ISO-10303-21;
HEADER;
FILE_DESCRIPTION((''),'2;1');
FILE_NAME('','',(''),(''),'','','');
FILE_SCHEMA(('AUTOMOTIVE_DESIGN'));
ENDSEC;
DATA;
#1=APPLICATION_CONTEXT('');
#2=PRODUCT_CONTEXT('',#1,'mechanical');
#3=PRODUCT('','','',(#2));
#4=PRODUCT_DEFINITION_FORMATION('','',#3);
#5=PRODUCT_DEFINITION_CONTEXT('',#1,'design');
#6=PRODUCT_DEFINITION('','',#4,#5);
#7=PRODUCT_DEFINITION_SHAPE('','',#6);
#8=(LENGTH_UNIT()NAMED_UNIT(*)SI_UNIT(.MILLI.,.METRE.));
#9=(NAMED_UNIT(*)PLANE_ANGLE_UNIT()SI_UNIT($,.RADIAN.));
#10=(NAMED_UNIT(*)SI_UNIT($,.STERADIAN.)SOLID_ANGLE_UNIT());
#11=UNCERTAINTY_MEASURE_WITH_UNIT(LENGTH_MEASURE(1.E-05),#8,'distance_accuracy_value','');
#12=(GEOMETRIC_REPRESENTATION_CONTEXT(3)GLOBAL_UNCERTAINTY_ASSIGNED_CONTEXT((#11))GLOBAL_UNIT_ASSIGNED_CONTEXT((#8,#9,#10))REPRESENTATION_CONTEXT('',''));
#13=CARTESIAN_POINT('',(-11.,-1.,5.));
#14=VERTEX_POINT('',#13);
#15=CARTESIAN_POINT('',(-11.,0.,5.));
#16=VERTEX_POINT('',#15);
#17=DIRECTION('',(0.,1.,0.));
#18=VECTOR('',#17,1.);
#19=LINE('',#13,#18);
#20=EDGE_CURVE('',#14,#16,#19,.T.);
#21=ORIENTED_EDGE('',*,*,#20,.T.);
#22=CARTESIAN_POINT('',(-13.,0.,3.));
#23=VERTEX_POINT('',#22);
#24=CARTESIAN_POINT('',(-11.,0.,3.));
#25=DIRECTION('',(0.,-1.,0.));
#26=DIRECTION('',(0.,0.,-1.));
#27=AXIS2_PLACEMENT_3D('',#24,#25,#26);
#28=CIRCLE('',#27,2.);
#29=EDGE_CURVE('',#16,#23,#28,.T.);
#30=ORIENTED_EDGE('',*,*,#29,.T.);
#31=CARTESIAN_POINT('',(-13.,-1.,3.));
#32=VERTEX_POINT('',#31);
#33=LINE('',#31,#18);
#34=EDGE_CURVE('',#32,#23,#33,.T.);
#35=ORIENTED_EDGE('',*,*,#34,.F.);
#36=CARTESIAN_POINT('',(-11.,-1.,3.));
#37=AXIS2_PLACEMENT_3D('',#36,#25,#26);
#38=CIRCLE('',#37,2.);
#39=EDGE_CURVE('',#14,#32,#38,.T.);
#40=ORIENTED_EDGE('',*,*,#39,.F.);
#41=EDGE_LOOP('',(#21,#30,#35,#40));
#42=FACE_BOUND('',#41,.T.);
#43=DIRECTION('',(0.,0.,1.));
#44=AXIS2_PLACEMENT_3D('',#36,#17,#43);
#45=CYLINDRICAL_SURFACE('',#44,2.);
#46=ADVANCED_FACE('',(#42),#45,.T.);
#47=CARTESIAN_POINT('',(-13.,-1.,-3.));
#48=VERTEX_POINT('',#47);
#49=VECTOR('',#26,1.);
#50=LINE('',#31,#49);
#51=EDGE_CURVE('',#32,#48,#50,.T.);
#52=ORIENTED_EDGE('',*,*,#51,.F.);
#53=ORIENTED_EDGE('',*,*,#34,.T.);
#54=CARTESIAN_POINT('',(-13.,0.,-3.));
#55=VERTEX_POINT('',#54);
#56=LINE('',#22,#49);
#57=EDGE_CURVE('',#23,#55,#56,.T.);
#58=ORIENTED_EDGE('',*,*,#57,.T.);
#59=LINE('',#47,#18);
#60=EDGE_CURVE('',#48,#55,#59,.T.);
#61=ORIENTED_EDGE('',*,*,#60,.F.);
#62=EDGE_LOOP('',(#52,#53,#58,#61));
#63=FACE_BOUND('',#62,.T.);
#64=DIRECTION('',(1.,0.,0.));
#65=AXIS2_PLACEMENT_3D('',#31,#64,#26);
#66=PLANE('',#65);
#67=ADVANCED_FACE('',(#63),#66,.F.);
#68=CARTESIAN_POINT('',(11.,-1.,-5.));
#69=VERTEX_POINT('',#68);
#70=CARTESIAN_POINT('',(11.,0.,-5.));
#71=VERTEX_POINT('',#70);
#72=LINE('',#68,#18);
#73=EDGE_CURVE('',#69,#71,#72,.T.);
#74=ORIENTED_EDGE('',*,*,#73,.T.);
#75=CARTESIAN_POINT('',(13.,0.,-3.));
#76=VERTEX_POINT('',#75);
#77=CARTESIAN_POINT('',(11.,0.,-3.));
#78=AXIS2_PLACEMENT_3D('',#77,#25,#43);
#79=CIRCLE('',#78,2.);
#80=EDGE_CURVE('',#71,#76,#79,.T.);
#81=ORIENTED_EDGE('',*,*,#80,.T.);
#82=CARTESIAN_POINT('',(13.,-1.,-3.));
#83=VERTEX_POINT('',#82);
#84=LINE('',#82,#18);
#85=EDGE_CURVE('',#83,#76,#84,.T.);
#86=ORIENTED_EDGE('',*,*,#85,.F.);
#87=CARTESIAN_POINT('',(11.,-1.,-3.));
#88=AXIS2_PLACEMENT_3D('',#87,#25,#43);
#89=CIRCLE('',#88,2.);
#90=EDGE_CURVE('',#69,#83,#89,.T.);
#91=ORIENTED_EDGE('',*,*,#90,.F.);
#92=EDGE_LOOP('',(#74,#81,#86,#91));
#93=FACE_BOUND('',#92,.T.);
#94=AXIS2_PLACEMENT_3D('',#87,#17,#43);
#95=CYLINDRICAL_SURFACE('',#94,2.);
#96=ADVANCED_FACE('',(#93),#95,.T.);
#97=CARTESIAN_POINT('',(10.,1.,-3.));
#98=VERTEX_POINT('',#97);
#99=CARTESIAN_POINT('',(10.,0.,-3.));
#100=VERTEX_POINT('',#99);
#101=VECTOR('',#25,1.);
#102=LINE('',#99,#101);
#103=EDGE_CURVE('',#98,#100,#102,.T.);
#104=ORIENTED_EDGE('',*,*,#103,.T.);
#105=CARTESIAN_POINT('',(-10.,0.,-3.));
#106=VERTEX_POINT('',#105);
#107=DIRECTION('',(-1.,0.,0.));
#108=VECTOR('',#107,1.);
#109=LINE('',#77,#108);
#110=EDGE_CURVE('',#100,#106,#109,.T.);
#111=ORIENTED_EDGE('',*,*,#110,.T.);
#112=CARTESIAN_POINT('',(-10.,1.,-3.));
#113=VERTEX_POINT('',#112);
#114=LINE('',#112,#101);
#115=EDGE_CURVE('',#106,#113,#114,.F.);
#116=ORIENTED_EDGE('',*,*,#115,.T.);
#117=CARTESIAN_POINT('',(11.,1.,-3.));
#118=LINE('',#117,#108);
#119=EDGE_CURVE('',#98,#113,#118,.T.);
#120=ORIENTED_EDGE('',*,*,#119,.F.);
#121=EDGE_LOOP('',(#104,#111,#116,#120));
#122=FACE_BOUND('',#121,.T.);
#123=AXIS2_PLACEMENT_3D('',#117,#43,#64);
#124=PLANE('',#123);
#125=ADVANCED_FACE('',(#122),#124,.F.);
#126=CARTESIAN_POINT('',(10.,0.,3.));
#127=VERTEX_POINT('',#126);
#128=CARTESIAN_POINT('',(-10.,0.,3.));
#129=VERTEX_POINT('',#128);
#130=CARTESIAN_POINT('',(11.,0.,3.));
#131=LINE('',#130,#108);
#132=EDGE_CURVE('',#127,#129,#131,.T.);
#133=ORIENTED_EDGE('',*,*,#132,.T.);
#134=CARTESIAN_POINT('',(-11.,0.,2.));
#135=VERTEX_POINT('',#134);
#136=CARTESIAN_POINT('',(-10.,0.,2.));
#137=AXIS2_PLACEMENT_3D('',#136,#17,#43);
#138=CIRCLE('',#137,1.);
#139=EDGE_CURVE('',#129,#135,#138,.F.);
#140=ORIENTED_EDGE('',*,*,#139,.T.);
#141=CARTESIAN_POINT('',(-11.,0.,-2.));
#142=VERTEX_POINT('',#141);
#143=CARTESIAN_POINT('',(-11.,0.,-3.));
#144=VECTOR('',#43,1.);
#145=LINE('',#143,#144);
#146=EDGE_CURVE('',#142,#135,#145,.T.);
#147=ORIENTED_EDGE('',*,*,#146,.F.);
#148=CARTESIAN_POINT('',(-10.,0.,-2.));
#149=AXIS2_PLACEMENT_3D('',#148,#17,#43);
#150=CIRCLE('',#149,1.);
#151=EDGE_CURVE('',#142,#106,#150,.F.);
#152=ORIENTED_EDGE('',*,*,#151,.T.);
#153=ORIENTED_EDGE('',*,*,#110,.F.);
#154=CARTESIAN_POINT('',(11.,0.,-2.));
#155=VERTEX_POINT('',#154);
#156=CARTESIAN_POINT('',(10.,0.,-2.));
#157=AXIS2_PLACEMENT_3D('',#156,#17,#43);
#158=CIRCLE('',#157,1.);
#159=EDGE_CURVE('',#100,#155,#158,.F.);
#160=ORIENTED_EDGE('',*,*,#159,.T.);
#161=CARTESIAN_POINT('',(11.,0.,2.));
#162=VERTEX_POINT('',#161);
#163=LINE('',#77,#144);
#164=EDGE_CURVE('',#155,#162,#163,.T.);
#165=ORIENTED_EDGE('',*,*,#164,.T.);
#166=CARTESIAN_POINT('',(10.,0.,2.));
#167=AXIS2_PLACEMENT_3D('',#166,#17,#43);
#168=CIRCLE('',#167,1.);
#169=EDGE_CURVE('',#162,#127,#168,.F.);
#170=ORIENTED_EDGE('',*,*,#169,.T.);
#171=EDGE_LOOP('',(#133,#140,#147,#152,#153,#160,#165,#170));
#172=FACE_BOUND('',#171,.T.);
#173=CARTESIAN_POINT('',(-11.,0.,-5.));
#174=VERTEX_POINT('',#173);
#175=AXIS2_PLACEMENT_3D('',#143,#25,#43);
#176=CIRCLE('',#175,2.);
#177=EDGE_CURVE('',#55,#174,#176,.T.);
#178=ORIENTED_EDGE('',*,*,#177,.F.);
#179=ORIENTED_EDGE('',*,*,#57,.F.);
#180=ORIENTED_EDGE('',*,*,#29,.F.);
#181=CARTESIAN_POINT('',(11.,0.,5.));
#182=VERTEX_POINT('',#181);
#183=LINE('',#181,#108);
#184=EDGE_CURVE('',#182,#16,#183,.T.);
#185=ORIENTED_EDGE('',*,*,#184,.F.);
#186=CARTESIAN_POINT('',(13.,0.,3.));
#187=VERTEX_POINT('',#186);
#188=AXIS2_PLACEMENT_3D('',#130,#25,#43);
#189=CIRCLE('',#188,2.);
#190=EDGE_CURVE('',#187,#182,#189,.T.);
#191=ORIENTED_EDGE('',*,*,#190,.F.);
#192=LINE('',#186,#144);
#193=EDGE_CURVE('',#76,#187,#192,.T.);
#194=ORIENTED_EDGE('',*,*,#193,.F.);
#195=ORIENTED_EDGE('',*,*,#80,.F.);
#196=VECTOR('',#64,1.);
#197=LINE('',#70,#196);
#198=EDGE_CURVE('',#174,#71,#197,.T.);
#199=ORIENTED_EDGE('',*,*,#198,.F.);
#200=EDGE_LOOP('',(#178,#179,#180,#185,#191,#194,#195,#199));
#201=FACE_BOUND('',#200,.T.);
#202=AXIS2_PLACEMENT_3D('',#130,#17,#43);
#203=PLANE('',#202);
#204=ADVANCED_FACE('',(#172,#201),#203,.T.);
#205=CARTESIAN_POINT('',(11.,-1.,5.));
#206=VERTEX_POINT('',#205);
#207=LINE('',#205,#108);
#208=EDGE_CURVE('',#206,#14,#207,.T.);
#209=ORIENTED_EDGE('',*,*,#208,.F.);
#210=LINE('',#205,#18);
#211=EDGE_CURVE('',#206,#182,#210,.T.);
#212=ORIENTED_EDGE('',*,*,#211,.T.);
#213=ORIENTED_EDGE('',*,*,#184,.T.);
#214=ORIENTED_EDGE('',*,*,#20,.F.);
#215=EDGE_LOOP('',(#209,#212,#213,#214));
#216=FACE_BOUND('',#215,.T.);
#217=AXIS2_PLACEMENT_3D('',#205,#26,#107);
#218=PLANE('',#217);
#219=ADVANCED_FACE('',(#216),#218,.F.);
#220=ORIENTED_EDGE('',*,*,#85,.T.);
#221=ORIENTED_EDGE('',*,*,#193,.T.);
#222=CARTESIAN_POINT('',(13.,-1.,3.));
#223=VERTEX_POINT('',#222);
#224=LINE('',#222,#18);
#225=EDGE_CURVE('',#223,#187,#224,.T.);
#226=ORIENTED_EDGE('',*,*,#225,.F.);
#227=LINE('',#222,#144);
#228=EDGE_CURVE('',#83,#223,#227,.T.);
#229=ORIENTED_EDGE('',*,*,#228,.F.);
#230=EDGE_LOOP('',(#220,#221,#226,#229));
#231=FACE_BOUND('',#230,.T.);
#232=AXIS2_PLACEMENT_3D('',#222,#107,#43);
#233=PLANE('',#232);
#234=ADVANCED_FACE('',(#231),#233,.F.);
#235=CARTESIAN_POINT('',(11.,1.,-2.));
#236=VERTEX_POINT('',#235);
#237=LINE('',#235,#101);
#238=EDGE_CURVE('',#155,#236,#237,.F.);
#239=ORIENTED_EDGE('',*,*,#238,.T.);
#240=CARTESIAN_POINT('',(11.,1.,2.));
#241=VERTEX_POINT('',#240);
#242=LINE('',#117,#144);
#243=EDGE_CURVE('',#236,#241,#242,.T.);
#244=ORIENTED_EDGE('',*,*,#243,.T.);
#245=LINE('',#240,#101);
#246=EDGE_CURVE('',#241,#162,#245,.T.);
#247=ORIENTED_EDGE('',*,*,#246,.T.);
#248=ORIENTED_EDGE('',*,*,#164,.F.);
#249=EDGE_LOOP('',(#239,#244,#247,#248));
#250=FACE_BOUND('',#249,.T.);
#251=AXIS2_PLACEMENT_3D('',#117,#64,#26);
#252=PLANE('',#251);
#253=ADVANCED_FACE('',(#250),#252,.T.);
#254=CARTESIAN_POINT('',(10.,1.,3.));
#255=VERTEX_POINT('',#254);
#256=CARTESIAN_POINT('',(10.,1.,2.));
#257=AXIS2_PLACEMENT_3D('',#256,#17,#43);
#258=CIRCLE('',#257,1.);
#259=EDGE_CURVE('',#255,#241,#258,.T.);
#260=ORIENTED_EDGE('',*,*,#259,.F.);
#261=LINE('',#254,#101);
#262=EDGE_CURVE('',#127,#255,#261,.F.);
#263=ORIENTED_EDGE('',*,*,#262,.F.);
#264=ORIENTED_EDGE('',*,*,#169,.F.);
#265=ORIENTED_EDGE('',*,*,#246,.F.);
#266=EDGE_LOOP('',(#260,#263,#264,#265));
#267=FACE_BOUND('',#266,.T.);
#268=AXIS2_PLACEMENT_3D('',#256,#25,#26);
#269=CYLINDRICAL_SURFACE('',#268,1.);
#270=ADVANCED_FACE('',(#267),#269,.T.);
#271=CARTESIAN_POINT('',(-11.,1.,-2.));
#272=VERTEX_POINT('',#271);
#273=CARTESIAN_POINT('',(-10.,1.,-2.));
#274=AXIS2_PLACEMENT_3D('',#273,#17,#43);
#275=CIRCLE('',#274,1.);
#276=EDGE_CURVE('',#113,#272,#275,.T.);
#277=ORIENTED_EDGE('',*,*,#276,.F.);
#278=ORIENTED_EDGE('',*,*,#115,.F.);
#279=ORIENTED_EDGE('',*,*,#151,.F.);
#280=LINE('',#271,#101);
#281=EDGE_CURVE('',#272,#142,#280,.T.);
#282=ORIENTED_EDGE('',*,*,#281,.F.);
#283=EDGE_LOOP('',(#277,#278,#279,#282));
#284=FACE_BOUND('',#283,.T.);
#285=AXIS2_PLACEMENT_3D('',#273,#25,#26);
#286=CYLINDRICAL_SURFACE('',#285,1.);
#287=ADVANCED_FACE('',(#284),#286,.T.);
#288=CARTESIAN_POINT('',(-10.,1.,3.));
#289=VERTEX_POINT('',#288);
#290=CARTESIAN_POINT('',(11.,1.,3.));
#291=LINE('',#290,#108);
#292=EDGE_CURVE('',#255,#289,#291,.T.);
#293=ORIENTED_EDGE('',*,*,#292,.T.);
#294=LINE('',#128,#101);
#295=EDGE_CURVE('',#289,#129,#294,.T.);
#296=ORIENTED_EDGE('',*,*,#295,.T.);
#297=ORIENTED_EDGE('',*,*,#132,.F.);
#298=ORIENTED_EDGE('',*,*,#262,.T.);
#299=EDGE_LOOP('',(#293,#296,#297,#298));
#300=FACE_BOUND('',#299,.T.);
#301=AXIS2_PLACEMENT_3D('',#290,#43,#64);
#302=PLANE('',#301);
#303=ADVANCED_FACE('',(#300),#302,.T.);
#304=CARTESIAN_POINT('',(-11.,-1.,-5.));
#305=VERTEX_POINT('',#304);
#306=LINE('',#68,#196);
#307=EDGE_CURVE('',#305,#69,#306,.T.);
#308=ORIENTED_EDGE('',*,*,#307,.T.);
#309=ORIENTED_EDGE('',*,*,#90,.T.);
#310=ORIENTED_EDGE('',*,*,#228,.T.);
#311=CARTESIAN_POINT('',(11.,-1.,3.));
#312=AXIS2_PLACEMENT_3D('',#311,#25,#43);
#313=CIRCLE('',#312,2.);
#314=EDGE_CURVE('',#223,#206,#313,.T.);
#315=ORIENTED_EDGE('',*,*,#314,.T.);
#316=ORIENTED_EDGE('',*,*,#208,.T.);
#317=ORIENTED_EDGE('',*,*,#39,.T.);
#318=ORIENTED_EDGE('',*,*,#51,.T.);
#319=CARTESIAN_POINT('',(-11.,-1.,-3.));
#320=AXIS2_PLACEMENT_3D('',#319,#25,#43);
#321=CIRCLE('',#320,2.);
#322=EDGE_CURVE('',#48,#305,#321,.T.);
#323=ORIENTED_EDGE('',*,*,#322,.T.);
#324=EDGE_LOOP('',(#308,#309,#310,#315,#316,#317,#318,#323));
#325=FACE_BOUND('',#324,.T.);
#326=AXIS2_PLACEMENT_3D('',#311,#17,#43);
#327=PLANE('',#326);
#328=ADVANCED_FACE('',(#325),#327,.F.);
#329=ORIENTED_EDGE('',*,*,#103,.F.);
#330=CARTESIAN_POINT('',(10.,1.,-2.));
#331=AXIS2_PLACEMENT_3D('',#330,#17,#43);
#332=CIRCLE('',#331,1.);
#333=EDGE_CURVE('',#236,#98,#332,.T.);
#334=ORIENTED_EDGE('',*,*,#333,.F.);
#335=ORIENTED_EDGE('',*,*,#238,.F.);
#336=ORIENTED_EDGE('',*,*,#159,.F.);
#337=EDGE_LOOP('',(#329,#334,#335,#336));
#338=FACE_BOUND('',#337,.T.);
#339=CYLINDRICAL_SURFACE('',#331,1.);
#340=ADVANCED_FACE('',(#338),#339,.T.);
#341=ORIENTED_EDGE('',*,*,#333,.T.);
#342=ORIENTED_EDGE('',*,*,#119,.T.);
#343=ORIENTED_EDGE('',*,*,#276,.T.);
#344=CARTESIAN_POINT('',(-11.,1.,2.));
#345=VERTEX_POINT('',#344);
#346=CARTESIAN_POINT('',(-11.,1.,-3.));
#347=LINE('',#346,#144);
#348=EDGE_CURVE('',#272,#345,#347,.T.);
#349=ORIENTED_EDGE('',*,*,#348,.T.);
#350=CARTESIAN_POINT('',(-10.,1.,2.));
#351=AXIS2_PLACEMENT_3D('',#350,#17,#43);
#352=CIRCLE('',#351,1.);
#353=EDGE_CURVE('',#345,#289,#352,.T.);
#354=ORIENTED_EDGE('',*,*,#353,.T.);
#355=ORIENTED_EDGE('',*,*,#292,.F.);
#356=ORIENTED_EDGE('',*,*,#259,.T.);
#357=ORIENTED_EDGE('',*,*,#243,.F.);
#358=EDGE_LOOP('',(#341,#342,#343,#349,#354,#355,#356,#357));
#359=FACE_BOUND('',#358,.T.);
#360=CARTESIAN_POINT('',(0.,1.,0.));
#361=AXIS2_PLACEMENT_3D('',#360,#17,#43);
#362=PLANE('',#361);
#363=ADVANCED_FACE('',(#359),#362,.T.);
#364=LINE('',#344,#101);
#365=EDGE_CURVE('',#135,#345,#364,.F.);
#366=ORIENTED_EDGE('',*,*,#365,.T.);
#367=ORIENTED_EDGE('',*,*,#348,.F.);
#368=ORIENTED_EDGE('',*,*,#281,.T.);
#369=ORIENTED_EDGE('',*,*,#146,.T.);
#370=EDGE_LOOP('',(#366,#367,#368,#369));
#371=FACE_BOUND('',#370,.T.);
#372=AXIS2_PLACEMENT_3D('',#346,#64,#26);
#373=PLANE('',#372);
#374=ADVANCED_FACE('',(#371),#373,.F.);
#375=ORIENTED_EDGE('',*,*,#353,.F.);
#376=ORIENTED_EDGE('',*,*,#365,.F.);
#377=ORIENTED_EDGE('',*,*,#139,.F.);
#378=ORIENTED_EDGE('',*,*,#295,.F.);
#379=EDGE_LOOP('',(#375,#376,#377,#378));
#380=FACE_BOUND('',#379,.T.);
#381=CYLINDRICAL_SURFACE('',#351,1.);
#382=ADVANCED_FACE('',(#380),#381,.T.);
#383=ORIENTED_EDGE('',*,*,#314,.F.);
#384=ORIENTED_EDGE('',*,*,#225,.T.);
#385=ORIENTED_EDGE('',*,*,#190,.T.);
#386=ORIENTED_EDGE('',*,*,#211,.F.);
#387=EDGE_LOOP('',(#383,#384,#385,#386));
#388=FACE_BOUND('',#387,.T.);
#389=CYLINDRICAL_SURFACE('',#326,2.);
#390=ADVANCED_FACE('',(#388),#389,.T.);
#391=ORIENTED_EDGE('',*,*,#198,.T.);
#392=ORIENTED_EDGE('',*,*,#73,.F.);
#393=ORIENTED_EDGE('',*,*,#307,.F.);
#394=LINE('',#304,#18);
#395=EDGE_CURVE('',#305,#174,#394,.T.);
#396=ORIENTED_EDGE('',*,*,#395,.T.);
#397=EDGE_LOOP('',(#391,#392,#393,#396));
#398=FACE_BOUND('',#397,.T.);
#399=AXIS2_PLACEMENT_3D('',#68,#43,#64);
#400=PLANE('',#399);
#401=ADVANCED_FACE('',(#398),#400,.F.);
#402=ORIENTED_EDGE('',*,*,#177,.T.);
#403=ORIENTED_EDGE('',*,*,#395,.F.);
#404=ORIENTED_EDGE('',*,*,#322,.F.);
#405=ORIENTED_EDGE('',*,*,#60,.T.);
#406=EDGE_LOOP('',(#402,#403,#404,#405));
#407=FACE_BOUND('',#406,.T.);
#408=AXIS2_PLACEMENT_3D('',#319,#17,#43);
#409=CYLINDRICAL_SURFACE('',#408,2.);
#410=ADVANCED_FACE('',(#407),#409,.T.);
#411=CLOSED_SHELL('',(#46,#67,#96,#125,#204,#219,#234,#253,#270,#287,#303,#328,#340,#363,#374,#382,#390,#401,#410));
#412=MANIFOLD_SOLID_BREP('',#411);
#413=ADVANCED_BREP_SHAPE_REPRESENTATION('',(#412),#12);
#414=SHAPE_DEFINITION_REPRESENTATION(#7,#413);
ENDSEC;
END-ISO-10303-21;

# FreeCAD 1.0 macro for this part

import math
import FreeCAD as App
import Part
import Sketcher
from FreeCAD import Vector
Q = App.Units.Quantity


def edges_at(feature, points):
    """Names of the edges that pass closest to the given points."""
    edges = feature.Shape.Edges
    near = lambda p: min(range(len(edges)), key=lambda i: edges[i].distToShape(Part.Vertex(*p))[0])
    return sorted({f"Edge{near(p) + 1}" for p in points})


def add_polygon(sketch, points):
    """Adds a closed chain of lines whose ends are joined by coincident constraints."""
    first, n = sketch.GeometryCount, len(points)
    for a, b in zip(points, points[1:] + points[:1]):
        sketch.addGeometry(Part.LineSegment(App.Vector(*a, 0), App.Vector(*b, 0)), False)
    for i in range(n):
        sketch.addConstraint(Sketcher.Constraint("Coincident", first + i, 2, first + (i + 1) % n, 1))

doc = App.newDocument("Part")
body = doc.addObject("PartDesign::Body", "Body")

# Sketch on XZ plane
sketch1 = body.newObject("Sketcher::SketchObject", "Sketch")
sketch1.AttachmentSupport = (doc.getObject("XZ_Plane"), [""])
sketch1.MapMode = "FlatFace"
add_polygon(sketch1, [(-11, -3), (-11, 3), (11, 3), (11, -3)])  # lines 0-3
sketch1.addConstraint(Sketcher.Constraint("Vertical", 0))
sketch1.addConstraint(Sketcher.Constraint("Horizontal", 1))
sketch1.addConstraint(Sketcher.Constraint("Vertical", 2))
sketch1.addConstraint(Sketcher.Constraint("Horizontal", 3))
sketch1.addConstraint(Sketcher.Constraint("Symmetric", 0, 2, 2, 2, -1, 1))
sketch1.addConstraint(Sketcher.Constraint("DistanceX", 1, 1, 1, 2, Q("22 mm")))
sketch1.addConstraint(Sketcher.Constraint("DistanceY", 0, 1, 0, 2, Q("6 mm")))
pad1 = body.newObject("PartDesign::Pad", "Pad")
pad1.Profile = sketch1
pad1.Length = 1
pad1.Reversed = True

# Sketch on XZ plane
sketch2 = body.newObject("Sketcher::SketchObject", "Sketch001")
sketch2.AttachmentSupport = (doc.getObject("XZ_Plane"), [""])
sketch2.MapMode = "FlatFace"
sketch2.addGeometry(Part.LineSegment(Vector(11, 5, 0), Vector(-11, 5, 0)), False)
sketch2.addGeometry(Part.ArcOfCircle(Part.Circle(Vector(-11, 3, 0), Vector(0, 0, 1), 2), math.radians(90), math.radians(180)), False)
sketch2.addGeometry(Part.LineSegment(Vector(-13, 3, 0), Vector(-13, -3, 0)), False)
sketch2.addGeometry(Part.ArcOfCircle(Part.Circle(Vector(-11, -3, 0), Vector(0, 0, 1), 2), math.radians(-180), math.radians(-90)), False)
sketch2.addGeometry(Part.LineSegment(Vector(-11, -5, 0), Vector(11, -5, 0)), False)
sketch2.addGeometry(Part.ArcOfCircle(Part.Circle(Vector(11, -3, 0), Vector(0, 0, 1), 2), math.radians(-90), math.radians(0)), False)
sketch2.addGeometry(Part.LineSegment(Vector(13, -3, 0), Vector(13, 3, 0)), False)
sketch2.addGeometry(Part.ArcOfCircle(Part.Circle(Vector(11, 3, 0), Vector(0, 0, 1), 2), math.radians(0), math.radians(90)), False)
sketch2.addConstraint(Sketcher.Constraint("Tangent", 0, 2, 1, 1))
sketch2.addConstraint(Sketcher.Constraint("Tangent", 1, 2, 2, 1))
sketch2.addConstraint(Sketcher.Constraint("Tangent", 2, 2, 3, 1))
sketch2.addConstraint(Sketcher.Constraint("Tangent", 3, 2, 4, 1))
sketch2.addConstraint(Sketcher.Constraint("Tangent", 4, 2, 5, 1))
sketch2.addConstraint(Sketcher.Constraint("Tangent", 5, 2, 6, 1))
sketch2.addConstraint(Sketcher.Constraint("Tangent", 6, 2, 7, 1))
sketch2.addConstraint(Sketcher.Constraint("Tangent", 7, 2, 0, 1))
sketch2.addConstraint(Sketcher.Constraint("Horizontal", 0))
sketch2.addConstraint(Sketcher.Constraint("Vertical", 2))
sketch2.addConstraint(Sketcher.Constraint("Horizontal", 4))
sketch2.addConstraint(Sketcher.Constraint("Vertical", 6))
sketch2.addConstraint(Sketcher.Constraint("Equal", 1, 3))
sketch2.addConstraint(Sketcher.Constraint("Equal", 3, 5))
sketch2.addConstraint(Sketcher.Constraint("Equal", 5, 7))
sketch2.addConstraint(Sketcher.Constraint("Symmetric", 1, 3, 5, 3, -1, 1))
sketch2.addConstraint(Sketcher.Constraint("Radius", 1, Q("2 mm")))
sketch2.addConstraint(Sketcher.Constraint("DistanceX", 0, 2, 0, 1, Q("22 mm")))
sketch2.addConstraint(Sketcher.Constraint("DistanceY", 2, 2, 2, 1, Q("6 mm")))
pad2 = body.newObject("PartDesign::Pad", "Pad001")
pad2.Profile = sketch2
pad2.Length = 1
doc.recompute()

fillet = body.newObject("PartDesign::Fillet", "Fillet")
fillet.Base = (pad2, edges_at(pad2, [
    (11, 0.5, 3),
    (11, 0.5, -3),
    (-11, 0.5, -3),
    (-11, 0.5, 3),
]))
fillet.Radius = 1

doc.recompute()
